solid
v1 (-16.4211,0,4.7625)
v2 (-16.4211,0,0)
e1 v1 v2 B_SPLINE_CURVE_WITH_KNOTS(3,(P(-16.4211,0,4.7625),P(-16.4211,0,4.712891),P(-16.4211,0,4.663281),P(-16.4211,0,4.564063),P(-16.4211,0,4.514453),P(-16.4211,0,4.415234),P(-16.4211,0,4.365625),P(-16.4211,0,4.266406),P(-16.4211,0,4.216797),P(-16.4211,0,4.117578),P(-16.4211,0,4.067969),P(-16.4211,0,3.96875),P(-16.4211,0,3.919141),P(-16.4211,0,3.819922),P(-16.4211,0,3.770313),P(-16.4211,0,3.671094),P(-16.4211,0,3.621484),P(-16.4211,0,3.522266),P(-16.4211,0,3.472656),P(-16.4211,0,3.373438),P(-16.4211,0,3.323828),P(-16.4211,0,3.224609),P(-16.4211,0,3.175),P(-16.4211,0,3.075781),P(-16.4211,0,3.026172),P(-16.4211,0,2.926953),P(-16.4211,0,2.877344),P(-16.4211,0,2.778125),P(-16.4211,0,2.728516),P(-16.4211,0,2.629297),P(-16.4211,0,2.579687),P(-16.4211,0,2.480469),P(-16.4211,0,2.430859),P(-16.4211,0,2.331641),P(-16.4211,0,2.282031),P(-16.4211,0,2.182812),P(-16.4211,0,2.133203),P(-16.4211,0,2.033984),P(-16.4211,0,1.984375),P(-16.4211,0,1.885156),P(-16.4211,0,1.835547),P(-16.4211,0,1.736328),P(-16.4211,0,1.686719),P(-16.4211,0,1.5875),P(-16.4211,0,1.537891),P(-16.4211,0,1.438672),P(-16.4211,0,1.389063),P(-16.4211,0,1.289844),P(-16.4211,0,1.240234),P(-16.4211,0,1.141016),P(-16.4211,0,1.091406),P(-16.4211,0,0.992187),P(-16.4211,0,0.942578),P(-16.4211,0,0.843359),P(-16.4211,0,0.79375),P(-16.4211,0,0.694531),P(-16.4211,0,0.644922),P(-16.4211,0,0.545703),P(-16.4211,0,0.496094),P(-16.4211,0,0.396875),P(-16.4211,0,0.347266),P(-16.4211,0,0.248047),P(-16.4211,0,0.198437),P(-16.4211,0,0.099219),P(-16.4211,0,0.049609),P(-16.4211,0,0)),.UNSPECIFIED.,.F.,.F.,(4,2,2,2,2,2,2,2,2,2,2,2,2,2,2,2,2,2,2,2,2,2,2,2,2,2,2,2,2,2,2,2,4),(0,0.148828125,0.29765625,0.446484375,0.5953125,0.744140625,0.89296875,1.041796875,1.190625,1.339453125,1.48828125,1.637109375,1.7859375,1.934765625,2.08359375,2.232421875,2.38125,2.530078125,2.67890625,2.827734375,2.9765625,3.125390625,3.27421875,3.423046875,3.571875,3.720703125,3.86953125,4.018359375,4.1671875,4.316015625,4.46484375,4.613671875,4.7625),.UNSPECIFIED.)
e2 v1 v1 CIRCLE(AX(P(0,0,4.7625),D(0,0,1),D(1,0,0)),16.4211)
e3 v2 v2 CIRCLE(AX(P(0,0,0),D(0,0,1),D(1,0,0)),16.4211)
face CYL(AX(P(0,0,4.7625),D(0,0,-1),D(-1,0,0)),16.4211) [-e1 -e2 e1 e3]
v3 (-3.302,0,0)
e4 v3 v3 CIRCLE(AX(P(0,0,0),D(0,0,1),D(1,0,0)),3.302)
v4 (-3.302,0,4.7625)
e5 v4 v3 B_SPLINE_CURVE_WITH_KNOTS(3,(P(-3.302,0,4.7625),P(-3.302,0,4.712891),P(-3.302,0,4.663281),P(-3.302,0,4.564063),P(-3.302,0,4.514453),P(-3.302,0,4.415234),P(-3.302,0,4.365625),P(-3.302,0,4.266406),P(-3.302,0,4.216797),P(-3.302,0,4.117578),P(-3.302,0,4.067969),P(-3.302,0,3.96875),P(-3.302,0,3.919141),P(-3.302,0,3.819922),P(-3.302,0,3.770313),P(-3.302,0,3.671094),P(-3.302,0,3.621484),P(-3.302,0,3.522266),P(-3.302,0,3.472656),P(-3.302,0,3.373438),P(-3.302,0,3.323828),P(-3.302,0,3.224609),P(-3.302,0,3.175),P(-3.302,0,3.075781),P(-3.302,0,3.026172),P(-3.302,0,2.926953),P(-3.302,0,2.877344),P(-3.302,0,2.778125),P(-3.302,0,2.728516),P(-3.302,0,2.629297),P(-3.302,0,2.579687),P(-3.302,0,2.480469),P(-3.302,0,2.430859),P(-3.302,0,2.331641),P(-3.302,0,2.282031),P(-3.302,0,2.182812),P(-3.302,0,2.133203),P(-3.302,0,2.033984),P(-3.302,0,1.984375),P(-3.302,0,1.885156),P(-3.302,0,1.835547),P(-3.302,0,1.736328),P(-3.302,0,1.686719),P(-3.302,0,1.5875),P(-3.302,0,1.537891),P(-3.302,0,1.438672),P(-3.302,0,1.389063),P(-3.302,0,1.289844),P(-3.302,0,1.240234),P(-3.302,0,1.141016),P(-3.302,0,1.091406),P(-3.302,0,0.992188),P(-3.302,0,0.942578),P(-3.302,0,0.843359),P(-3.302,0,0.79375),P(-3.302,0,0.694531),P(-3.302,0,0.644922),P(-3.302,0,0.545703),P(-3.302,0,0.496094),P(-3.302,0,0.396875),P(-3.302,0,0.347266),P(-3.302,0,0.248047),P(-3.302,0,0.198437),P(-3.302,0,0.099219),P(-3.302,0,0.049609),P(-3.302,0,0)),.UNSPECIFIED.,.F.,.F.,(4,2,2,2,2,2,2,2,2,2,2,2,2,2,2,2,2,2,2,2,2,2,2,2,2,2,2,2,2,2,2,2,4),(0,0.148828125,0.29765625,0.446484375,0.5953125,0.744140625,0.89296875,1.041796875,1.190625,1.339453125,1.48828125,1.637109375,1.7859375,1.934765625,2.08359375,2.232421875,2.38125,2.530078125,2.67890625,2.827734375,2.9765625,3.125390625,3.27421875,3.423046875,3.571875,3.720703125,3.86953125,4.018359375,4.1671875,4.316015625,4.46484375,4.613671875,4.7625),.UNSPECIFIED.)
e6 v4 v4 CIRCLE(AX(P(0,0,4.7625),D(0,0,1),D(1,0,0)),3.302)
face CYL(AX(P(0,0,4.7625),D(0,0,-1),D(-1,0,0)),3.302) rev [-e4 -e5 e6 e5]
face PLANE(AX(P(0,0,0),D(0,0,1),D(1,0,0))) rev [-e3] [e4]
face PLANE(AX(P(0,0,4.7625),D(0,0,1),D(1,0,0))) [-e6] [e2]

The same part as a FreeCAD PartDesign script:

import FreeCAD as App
import Part
import Sketcher

V = App.Vector
Q = App.Units.Quantity

doc = App.newDocument("Part")
body = doc.addObject("PartDesign::Body", "Body")

sketch1 = doc.addObject("Sketcher::SketchObject", "Sketch")
body.addObject(sketch1)
sketch1.AttachmentSupport = (doc.XY_Plane, [""])
sketch1.MapMode = "FlatFace"
sketch1.addGeometry(Part.Circle(V(0, 0, 0), V(0, 0, 1), 16.4211), False)
sketch1.addGeometry(Part.Circle(V(0, 0, 0), V(0, 0, 1), 3.302), False)
sketch1.addConstraint(Sketcher.Constraint("Coincident", 0, 3, -1, 1))
sketch1.addConstraint(Sketcher.Constraint("Coincident", 1, 3, -1, 1))
sketch1.addConstraint(Sketcher.Constraint("Diameter", 1, Q("0.26 in")))
sketch1.addConstraint(Sketcher.Constraint("Diameter", 0, Q("1.293 in")))
pad1 = doc.addObject("PartDesign::Pad", "Pad")
body.addObject(pad1)
pad1.Profile = sketch1
pad1.Length = Q("0.1875 in")

doc.recompute()
